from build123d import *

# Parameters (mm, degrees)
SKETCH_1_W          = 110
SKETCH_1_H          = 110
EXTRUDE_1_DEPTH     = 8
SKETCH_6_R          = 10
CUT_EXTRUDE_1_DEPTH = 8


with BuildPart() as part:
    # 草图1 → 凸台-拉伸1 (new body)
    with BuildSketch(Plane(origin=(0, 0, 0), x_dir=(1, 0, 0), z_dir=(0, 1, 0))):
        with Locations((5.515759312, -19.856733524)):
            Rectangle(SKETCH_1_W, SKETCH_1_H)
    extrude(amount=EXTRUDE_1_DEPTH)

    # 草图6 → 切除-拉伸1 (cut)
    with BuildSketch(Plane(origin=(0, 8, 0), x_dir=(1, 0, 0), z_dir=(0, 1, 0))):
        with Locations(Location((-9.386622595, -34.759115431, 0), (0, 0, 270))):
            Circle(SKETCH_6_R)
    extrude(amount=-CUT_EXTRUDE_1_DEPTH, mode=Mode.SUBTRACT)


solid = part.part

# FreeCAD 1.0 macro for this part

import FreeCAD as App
import Part
import Sketcher
from FreeCAD import Vector
Q = App.Units.Quantity


def add_polygon(sketch, points):
    """Adds a closed chain of lines whose ends are joined by coincident constraints."""
    first, n = sketch.GeometryCount, len(points)
    for a, b in zip(points, points[1:] + points[:1]):
        sketch.addGeometry(Part.LineSegment(App.Vector(*a, 0), App.Vector(*b, 0)), False)
    for i in range(n):
        sketch.addConstraint(Sketcher.Constraint("Coincident", first + i, 2, first + (i + 1) % n, 1))

doc = App.newDocument("Part")
body = doc.addObject("PartDesign::Body", "Body")

sketch1 = body.newObject("Sketcher::SketchObject", "Sketch")
sketch1.AttachmentSupport = (doc.getObject("XZ_Plane"), [""])
sketch1.MapMode = "FlatFace"
add_polygon(sketch1, [(-49, -35), (-49, 75), (61, 75), (61, -35)])
sketch1.addConstraint(Sketcher.Constraint("Vertical", 0))
sketch1.addConstraint(Sketcher.Constraint("Horizontal", 1))
sketch1.addConstraint(Sketcher.Constraint("Vertical", 2))
sketch1.addConstraint(Sketcher.Constraint("Horizontal", 3))
sketch1.addConstraint(Sketcher.Constraint("Equal", 3, 0))
sketch1.addConstraint(Sketcher.Constraint("DistanceX", 1, 1, 1, 2, Q("110 mm")))
sketch1.addConstraint(Sketcher.Constraint("DistanceX", 0, 2, -1, 1, Q("49.484241 mm")))
sketch1.addConstraint(Sketcher.Constraint("DistanceY", -1, 1, 0, 2, Q("74.856734 mm")))
pad1 = body.newObject("PartDesign::Pad", "Pad")
pad1.Profile = sketch1
pad1.Length = 8
pad1.Reversed = True

sketch2 = body.newObject("Sketcher::SketchObject", "Sketch001")
sketch2.AttachmentSupport = (doc.getObject("XZ_Plane"), [""])
sketch2.MapMode = "FlatFace"
sketch2.AttachmentOffset = App.Placement(Vector(0, 0, -8), App.Rotation())
sketch2.addGeometry(Part.Circle(Vector(-9, 35, 0), Vector(0, 0, 1), 10), False)
sketch2.addConstraint(Sketcher.Constraint("Diameter", 0, Q("20 mm")))
sketch2.addConstraint(Sketcher.Constraint("DistanceX", 0, 3, -1, 1, Q("9.386623 mm")))
sketch2.addConstraint(Sketcher.Constraint("DistanceY", -1, 1, 0, 3, Q("34.759115 mm")))
pocket1 = body.newObject("PartDesign::Pocket", "Pocket")
pocket1.Profile = sketch2
pocket1.Length = 8
pocket1.Reversed = True

doc.recompute()
